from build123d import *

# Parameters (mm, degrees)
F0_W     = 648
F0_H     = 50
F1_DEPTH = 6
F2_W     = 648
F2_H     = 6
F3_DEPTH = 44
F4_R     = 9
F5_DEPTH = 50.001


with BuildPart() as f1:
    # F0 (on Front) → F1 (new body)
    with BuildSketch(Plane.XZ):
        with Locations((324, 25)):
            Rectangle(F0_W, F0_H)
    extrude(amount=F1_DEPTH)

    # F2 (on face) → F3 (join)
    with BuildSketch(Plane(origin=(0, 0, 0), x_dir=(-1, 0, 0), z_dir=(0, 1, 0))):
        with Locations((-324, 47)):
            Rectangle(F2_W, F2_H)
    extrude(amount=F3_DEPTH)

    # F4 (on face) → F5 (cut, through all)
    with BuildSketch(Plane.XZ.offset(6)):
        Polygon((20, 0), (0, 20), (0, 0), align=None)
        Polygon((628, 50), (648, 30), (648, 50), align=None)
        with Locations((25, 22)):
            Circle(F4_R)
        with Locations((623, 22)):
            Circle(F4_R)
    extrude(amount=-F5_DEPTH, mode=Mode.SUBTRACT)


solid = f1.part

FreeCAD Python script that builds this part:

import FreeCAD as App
import Part
import Sketcher

V = App.Vector
Q = App.Units.Quantity


def add_polygon(sketch, points):
    """Adds a closed chain of lines whose ends are joined by coincident constraints."""
    first, n = sketch.GeometryCount, len(points)
    for a, b in zip(points, points[1:] + points[:1]):
        sketch.addGeometry(Part.LineSegment(App.Vector(*a, 0), App.Vector(*b, 0)), False)
    for i in range(n):
        sketch.addConstraint(Sketcher.Constraint("Coincident", first + i, 2, first + (i + 1) % n, 1))

doc = App.newDocument("Part")
body = doc.addObject("PartDesign::Body", "Body")

# Sketch on XZ plane
sketch1 = body.newObject("Sketcher::SketchObject", "Sketch")
sketch1.AttachmentSupport = (doc.getObject("XZ_Plane"), [""])
sketch1.MapMode = "FlatFace"
add_polygon(sketch1, [(0, 50), (0, 0), (648, 0), (648, 50)])  # lines 0-3
sketch1.addConstraint([
    Sketcher.Constraint("Vertical", 0),
    Sketcher.Constraint("Horizontal", 1),
    Sketcher.Constraint("Vertical", 2),
    Sketcher.Constraint("Horizontal", 3),
    Sketcher.Constraint("Coincident", 0, 2, -1, 1),
    Sketcher.Constraint("DistanceX", 1, 1, 1, 2, Q("648 mm")),
    Sketcher.Constraint("DistanceY", 0, 2, 0, 1, Q("50 mm")),
])
pad1 = body.newObject("PartDesign::Pad", "Pad")
pad1.Profile = sketch1
pad1.Length = 6

# Sketch on XZ plane
sketch2 = body.newObject("Sketcher::SketchObject", "Sketch001")
sketch2.AttachmentSupport = (doc.getObject("XZ_Plane"), [""])
sketch2.MapMode = "FlatFace"
add_polygon(sketch2, [(648, 50), (648, 44), (0, 44), (0, 50)])  # lines 0-3
sketch2.addConstraint([
    Sketcher.Constraint("Vertical", 0),
    Sketcher.Constraint("Horizontal", 1),
    Sketcher.Constraint("Vertical", 2),
    Sketcher.Constraint("Horizontal", 3),
    Sketcher.Constraint("PointOnObject", 1, 2, -2),
    Sketcher.Constraint("DistanceX", 1, 2, 1, 1, Q("648 mm")),
    Sketcher.Constraint("DistanceY", 0, 2, 0, 1, Q("6 mm")),
    Sketcher.Constraint("DistanceY", -1, 1, 0, 2, Q("44 mm")),
])
pad2 = body.newObject("PartDesign::Pad", "Pad001")
pad2.Profile = sketch2
pad2.Length = 44
pad2.Reversed = True

# Sketch on XZ plane
sketch3 = body.newObject("Sketcher::SketchObject", "Sketch002")
sketch3.AttachmentSupport = (doc.getObject("XZ_Plane"), [""])
sketch3.MapMode = "FlatFace"
sketch3.AttachmentOffset = App.Placement(V(0, 0, 6), App.Rotation())
add_polygon(sketch3, [(20, 0), (0, 20), (0, 0)])  # lines 0-2
add_polygon(sketch3, [(628, 50), (648, 30), (648, 50)])  # lines 3-5
sketch3.addGeometry(Part.Circle(V(25, 22, 0), V(0, 0, 1), 9), False)  # 6
sketch3.addGeometry(Part.Circle(V(623, 22, 0), V(0, 0, 1), 9), False)  # 7
sketch3.addConstraint([
    Sketcher.Constraint("Vertical", 1),
    Sketcher.Constraint("Horizontal", 2),
    Sketcher.Constraint("Vertical", 4),
    Sketcher.Constraint("Horizontal", 5),
    Sketcher.Constraint("Coincident", 1, 2, -1, 1),
    Sketcher.Constraint("Equal", 6, 7),
    Sketcher.Constraint("Parallel", 0, 3),
    Sketcher.Constraint("Horizontal", 6, 3, 7, 3),
    Sketcher.Constraint("Equal", 2, 5),
    Sketcher.Constraint("Equal", 5, 1),
    Sketcher.Constraint("Diameter", 6, Q("18 mm")),
    Sketcher.Constraint("DistanceX", 2, 1, 2, 2, Q("20 mm")),
    Sketcher.Constraint("DistanceX", -1, 1, 6, 3, Q("25 mm")),
    Sketcher.Constraint("DistanceY", -1, 1, 6, 3, Q("22 mm")),
    Sketcher.Constraint("DistanceX", -1, 1, 7, 3, Q("623 mm")),
    Sketcher.Constraint("DistanceX", -1, 1, 3, 2, Q("648 mm")),
    Sketcher.Constraint("DistanceY", -1, 1, 3, 2, Q("30 mm")),
])
pocket1 = body.newObject("PartDesign::Pocket", "Pocket")
pocket1.Profile = sketch3
pocket1.Type = "ThroughAll"

doc.recompute()
